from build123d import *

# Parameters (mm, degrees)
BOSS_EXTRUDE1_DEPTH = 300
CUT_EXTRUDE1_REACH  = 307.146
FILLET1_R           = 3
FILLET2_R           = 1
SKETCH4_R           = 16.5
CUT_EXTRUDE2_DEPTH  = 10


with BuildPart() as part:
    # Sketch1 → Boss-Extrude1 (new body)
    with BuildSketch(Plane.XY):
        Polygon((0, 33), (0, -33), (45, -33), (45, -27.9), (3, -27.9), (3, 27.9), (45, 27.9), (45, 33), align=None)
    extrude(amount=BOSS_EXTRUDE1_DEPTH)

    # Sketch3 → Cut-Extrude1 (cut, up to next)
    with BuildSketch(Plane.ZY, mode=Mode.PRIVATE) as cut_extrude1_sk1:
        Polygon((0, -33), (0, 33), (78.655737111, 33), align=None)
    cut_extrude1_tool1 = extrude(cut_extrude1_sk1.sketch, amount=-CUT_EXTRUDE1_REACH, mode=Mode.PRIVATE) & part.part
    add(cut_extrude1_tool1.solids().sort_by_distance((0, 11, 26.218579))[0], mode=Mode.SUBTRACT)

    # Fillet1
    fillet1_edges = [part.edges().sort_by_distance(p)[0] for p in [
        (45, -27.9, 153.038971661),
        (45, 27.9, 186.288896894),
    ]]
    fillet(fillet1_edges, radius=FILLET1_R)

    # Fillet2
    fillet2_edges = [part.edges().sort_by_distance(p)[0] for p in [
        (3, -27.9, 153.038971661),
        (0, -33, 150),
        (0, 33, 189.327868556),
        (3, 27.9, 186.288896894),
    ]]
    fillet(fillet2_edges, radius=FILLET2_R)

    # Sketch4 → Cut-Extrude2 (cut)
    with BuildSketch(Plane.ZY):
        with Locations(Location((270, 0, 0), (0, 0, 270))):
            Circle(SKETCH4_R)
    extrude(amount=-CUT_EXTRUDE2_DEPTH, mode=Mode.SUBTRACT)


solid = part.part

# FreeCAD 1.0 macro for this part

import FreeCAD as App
import Part
import Sketcher

V = App.Vector
Q = App.Units.Quantity


def edges_at(feature, points):
    """Names of the edges that pass closest to the given points."""
    edges = feature.Shape.Edges
    near = lambda p: min(range(len(edges)), key=lambda i: edges[i].distToShape(Part.Vertex(*p))[0])
    return sorted({f"Edge{near(p) + 1}" for p in points})


def add_polygon(sketch, points):
    """Adds a closed chain of lines whose ends are joined by coincident constraints."""
    first, n = sketch.GeometryCount, len(points)
    for a, b in zip(points, points[1:] + points[:1]):
        sketch.addGeometry(Part.LineSegment(App.Vector(*a, 0), App.Vector(*b, 0)), False)
    for i in range(n):
        sketch.addConstraint(Sketcher.Constraint("Coincident", first + i, 2, first + (i + 1) % n, 1))

doc = App.newDocument("Part")
body = doc.addObject("PartDesign::Body", "Body")

sketch1 = doc.addObject("Sketcher::SketchObject", "Sketch")
body.addObject(sketch1)
sketch1.AttachmentSupport = (doc.XY_Plane, [""])
sketch1.MapMode = "FlatFace"
add_polygon(sketch1, [(0, 33), (0, -33), (45, -33), (45, -28), (3, -28), (3, 28), (45, 28), (45, 33)])
sketch1.addConstraint(Sketcher.Constraint("Vertical", 0))
sketch1.addConstraint(Sketcher.Constraint("Horizontal", 1))
sketch1.addConstraint(Sketcher.Constraint("Vertical", 2))
sketch1.addConstraint(Sketcher.Constraint("Horizontal", 3))
sketch1.addConstraint(Sketcher.Constraint("Vertical", 4))
sketch1.addConstraint(Sketcher.Constraint("Horizontal", 5))
sketch1.addConstraint(Sketcher.Constraint("Vertical", 6))
sketch1.addConstraint(Sketcher.Constraint("Horizontal", 7))
sketch1.addConstraint(Sketcher.Constraint("Symmetric", 0, 2, 7, 2, -1, 1))
sketch1.addConstraint(Sketcher.Constraint("Symmetric", 2, 2, 5, 2, -1))
sketch1.addConstraint(Sketcher.Constraint("DistanceX", 1, 1, 1, 2, Q("45 mm")))
sketch1.addConstraint(Sketcher.Constraint("DistanceX", 3, 2, 3, 1, Q("42 mm")))
sketch1.addConstraint(Sketcher.Constraint("DistanceY", 0, 2, 0, 1, Q("66 mm")))
sketch1.addConstraint(Sketcher.Constraint("DistanceY", 2, 1, 2, 2, Q("5.1 mm")))
pad1 = doc.addObject("PartDesign::Pad", "Pad")
body.addObject(pad1)
pad1.Profile = sketch1
pad1.Length = 300

sketch2 = doc.addObject("Sketcher::SketchObject", "Sketch001")
body.addObject(sketch2)
sketch2.AttachmentSupport = (doc.YZ_Plane, [""])
sketch2.MapMode = "FlatFace"
add_polygon(sketch2, [(33, 0), (-33, 0), (33, 79)])
sketch2.addConstraint(Sketcher.Constraint("Horizontal", 0))
sketch2.addConstraint(Sketcher.Constraint("Vertical", 2))
sketch2.addConstraint(Sketcher.Constraint("Symmetric", 0, 2, 2, 2, -1, 1))
sketch2.addConstraint(Sketcher.Constraint("DistanceX", 0, 2, 0, 1, Q("66 mm")))
sketch2.addConstraint(Sketcher.Constraint("Angle", 1, Q("50 deg")))
pocket1 = doc.addObject("PartDesign::Pocket", "Pocket")
body.addObject(pocket1)
pocket1.Profile = sketch2
pocket1.Length = 45
pocket1.Reversed = True
doc.recompute()

fillet = doc.addObject("PartDesign::Fillet", "Fillet")
body.addObject(fillet)
fillet.Base = (pocket1, edges_at(pocket1, [(45, -27.9, 153.039), (45, 27.9, 186.289)]))
fillet.Radius = 3
doc.recompute()

fillet2 = doc.addObject("PartDesign::Fillet", "Fillet001")
body.addObject(fillet2)
fillet2.Base = (fillet, edges_at(fillet, [
    (3, -27.9, 153.039),
    (0, -33, 150),
    (0, 33, 189.328),
    (3, 27.9, 186.289),
]))
fillet2.Radius = 1

sketch3 = doc.addObject("Sketcher::SketchObject", "Sketch002")
body.addObject(sketch3)
sketch3.AttachmentSupport = (doc.YZ_Plane, [""])
sketch3.MapMode = "FlatFace"
sketch3.addGeometry(Part.Circle(V(0, 270, 0), V(0, 0, 1), 16), False)
sketch3.addConstraint(Sketcher.Constraint("PointOnObject", 0, 3, -2))
sketch3.addConstraint(Sketcher.Constraint("Diameter", 0, Q("33 mm")))
sketch3.addConstraint(Sketcher.Constraint("DistanceY", -1, 1, 0, 3, Q("270 mm")))
pocket2 = doc.addObject("PartDesign::Pocket", "Pocket001")
body.addObject(pocket2)
pocket2.Profile = sketch3
pocket2.Length = 10
pocket2.Reversed = True

doc.recompute()
